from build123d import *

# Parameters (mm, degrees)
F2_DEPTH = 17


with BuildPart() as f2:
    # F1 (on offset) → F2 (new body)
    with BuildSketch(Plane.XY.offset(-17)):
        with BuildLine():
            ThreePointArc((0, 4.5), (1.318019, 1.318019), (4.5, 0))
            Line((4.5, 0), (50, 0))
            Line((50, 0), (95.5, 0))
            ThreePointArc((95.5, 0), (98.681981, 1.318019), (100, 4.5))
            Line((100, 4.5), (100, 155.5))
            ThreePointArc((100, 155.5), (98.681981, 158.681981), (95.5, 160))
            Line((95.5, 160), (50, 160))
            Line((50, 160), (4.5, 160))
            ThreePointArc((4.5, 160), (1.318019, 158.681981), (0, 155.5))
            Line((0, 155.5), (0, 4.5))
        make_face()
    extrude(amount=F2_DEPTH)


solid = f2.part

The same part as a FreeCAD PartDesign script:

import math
import FreeCAD as App
import Part
import Sketcher

V = App.Vector

doc = App.newDocument("Part")
body = doc.addObject("PartDesign::Body", "Body")

sketch1 = body.newObject("Sketcher::SketchObject", "Sketch")
sketch1.AttachmentSupport = (doc.getObject("XY_Plane"), [""])
sketch1.MapMode = "FlatFace"
sketch1.AttachmentOffset = App.Placement(V(0, 0, -17), App.Rotation())
sketch1.addGeometry([
    Part.ArcOfCircle(Part.Circle(V(4.5, 4.5, 0), V(0, 0, 1), 4.5), math.radians(180), math.radians(270)),
    Part.LineSegment(V(4.5, 0, 0), V(95.5, 0, 0)),
    Part.ArcOfCircle(Part.Circle(V(95.5, 4.5, 0), V(0, 0, 1), 4.5), math.radians(-90), math.radians(0)),
    Part.LineSegment(V(100, 4.5, 0), V(100, 155.5, 0)),
    Part.ArcOfCircle(Part.Circle(V(95.5, 155.5, 0), V(0, 0, 1), 4.5), math.radians(0), math.radians(90)),
    Part.LineSegment(V(95.5, 160, 0), V(4.5, 160, 0)),
    Part.ArcOfCircle(Part.Circle(V(4.5, 155.5, 0), V(0, 0, 1), 4.5), math.radians(90), math.radians(180)),
    Part.LineSegment(V(0, 155.5, 0), V(0, 4.5, 0)),
], False)
sketch1.addConstraint([
    Sketcher.Constraint("Tangent", 0, 2, 1, 1),
    Sketcher.Constraint("Tangent", 1, 2, 2, 1),
    Sketcher.Constraint("Tangent", 2, 2, 3, 1),
    Sketcher.Constraint("Tangent", 3, 2, 4, 1),
    Sketcher.Constraint("Tangent", 4, 2, 5, 1),
    Sketcher.Constraint("Tangent", 5, 2, 6, 1),
    Sketcher.Constraint("Tangent", 6, 2, 7, 1),
    Sketcher.Constraint("Tangent", 7, 2, 0, 1),
    Sketcher.Constraint("Horizontal", 1),
    Sketcher.Constraint("Vertical", 3),
    Sketcher.Constraint("Horizontal", 5),
    Sketcher.Constraint("Vertical", 7),
    Sketcher.Constraint("Equal", 0, 2),
    Sketcher.Constraint("Equal", 2, 4),
    Sketcher.Constraint("Equal", 4, 6),
    Sketcher.Constraint("PointOnObject", 0, 2, -1),
    Sketcher.Constraint("PointOnObject", 6, 2, -2),
    Sketcher.Constraint("Radius", 0, 4.499998),
    Sketcher.Constraint("DistanceX", 1, 1, 1, 2, 91.0),
    Sketcher.Constraint("DistanceY", 3, 1, 3, 2, 151.0),
])
pad1 = body.newObject("PartDesign::Pad", "Pad")
pad1.Profile = sketch1
pad1.Length = 17

doc.recompute()
